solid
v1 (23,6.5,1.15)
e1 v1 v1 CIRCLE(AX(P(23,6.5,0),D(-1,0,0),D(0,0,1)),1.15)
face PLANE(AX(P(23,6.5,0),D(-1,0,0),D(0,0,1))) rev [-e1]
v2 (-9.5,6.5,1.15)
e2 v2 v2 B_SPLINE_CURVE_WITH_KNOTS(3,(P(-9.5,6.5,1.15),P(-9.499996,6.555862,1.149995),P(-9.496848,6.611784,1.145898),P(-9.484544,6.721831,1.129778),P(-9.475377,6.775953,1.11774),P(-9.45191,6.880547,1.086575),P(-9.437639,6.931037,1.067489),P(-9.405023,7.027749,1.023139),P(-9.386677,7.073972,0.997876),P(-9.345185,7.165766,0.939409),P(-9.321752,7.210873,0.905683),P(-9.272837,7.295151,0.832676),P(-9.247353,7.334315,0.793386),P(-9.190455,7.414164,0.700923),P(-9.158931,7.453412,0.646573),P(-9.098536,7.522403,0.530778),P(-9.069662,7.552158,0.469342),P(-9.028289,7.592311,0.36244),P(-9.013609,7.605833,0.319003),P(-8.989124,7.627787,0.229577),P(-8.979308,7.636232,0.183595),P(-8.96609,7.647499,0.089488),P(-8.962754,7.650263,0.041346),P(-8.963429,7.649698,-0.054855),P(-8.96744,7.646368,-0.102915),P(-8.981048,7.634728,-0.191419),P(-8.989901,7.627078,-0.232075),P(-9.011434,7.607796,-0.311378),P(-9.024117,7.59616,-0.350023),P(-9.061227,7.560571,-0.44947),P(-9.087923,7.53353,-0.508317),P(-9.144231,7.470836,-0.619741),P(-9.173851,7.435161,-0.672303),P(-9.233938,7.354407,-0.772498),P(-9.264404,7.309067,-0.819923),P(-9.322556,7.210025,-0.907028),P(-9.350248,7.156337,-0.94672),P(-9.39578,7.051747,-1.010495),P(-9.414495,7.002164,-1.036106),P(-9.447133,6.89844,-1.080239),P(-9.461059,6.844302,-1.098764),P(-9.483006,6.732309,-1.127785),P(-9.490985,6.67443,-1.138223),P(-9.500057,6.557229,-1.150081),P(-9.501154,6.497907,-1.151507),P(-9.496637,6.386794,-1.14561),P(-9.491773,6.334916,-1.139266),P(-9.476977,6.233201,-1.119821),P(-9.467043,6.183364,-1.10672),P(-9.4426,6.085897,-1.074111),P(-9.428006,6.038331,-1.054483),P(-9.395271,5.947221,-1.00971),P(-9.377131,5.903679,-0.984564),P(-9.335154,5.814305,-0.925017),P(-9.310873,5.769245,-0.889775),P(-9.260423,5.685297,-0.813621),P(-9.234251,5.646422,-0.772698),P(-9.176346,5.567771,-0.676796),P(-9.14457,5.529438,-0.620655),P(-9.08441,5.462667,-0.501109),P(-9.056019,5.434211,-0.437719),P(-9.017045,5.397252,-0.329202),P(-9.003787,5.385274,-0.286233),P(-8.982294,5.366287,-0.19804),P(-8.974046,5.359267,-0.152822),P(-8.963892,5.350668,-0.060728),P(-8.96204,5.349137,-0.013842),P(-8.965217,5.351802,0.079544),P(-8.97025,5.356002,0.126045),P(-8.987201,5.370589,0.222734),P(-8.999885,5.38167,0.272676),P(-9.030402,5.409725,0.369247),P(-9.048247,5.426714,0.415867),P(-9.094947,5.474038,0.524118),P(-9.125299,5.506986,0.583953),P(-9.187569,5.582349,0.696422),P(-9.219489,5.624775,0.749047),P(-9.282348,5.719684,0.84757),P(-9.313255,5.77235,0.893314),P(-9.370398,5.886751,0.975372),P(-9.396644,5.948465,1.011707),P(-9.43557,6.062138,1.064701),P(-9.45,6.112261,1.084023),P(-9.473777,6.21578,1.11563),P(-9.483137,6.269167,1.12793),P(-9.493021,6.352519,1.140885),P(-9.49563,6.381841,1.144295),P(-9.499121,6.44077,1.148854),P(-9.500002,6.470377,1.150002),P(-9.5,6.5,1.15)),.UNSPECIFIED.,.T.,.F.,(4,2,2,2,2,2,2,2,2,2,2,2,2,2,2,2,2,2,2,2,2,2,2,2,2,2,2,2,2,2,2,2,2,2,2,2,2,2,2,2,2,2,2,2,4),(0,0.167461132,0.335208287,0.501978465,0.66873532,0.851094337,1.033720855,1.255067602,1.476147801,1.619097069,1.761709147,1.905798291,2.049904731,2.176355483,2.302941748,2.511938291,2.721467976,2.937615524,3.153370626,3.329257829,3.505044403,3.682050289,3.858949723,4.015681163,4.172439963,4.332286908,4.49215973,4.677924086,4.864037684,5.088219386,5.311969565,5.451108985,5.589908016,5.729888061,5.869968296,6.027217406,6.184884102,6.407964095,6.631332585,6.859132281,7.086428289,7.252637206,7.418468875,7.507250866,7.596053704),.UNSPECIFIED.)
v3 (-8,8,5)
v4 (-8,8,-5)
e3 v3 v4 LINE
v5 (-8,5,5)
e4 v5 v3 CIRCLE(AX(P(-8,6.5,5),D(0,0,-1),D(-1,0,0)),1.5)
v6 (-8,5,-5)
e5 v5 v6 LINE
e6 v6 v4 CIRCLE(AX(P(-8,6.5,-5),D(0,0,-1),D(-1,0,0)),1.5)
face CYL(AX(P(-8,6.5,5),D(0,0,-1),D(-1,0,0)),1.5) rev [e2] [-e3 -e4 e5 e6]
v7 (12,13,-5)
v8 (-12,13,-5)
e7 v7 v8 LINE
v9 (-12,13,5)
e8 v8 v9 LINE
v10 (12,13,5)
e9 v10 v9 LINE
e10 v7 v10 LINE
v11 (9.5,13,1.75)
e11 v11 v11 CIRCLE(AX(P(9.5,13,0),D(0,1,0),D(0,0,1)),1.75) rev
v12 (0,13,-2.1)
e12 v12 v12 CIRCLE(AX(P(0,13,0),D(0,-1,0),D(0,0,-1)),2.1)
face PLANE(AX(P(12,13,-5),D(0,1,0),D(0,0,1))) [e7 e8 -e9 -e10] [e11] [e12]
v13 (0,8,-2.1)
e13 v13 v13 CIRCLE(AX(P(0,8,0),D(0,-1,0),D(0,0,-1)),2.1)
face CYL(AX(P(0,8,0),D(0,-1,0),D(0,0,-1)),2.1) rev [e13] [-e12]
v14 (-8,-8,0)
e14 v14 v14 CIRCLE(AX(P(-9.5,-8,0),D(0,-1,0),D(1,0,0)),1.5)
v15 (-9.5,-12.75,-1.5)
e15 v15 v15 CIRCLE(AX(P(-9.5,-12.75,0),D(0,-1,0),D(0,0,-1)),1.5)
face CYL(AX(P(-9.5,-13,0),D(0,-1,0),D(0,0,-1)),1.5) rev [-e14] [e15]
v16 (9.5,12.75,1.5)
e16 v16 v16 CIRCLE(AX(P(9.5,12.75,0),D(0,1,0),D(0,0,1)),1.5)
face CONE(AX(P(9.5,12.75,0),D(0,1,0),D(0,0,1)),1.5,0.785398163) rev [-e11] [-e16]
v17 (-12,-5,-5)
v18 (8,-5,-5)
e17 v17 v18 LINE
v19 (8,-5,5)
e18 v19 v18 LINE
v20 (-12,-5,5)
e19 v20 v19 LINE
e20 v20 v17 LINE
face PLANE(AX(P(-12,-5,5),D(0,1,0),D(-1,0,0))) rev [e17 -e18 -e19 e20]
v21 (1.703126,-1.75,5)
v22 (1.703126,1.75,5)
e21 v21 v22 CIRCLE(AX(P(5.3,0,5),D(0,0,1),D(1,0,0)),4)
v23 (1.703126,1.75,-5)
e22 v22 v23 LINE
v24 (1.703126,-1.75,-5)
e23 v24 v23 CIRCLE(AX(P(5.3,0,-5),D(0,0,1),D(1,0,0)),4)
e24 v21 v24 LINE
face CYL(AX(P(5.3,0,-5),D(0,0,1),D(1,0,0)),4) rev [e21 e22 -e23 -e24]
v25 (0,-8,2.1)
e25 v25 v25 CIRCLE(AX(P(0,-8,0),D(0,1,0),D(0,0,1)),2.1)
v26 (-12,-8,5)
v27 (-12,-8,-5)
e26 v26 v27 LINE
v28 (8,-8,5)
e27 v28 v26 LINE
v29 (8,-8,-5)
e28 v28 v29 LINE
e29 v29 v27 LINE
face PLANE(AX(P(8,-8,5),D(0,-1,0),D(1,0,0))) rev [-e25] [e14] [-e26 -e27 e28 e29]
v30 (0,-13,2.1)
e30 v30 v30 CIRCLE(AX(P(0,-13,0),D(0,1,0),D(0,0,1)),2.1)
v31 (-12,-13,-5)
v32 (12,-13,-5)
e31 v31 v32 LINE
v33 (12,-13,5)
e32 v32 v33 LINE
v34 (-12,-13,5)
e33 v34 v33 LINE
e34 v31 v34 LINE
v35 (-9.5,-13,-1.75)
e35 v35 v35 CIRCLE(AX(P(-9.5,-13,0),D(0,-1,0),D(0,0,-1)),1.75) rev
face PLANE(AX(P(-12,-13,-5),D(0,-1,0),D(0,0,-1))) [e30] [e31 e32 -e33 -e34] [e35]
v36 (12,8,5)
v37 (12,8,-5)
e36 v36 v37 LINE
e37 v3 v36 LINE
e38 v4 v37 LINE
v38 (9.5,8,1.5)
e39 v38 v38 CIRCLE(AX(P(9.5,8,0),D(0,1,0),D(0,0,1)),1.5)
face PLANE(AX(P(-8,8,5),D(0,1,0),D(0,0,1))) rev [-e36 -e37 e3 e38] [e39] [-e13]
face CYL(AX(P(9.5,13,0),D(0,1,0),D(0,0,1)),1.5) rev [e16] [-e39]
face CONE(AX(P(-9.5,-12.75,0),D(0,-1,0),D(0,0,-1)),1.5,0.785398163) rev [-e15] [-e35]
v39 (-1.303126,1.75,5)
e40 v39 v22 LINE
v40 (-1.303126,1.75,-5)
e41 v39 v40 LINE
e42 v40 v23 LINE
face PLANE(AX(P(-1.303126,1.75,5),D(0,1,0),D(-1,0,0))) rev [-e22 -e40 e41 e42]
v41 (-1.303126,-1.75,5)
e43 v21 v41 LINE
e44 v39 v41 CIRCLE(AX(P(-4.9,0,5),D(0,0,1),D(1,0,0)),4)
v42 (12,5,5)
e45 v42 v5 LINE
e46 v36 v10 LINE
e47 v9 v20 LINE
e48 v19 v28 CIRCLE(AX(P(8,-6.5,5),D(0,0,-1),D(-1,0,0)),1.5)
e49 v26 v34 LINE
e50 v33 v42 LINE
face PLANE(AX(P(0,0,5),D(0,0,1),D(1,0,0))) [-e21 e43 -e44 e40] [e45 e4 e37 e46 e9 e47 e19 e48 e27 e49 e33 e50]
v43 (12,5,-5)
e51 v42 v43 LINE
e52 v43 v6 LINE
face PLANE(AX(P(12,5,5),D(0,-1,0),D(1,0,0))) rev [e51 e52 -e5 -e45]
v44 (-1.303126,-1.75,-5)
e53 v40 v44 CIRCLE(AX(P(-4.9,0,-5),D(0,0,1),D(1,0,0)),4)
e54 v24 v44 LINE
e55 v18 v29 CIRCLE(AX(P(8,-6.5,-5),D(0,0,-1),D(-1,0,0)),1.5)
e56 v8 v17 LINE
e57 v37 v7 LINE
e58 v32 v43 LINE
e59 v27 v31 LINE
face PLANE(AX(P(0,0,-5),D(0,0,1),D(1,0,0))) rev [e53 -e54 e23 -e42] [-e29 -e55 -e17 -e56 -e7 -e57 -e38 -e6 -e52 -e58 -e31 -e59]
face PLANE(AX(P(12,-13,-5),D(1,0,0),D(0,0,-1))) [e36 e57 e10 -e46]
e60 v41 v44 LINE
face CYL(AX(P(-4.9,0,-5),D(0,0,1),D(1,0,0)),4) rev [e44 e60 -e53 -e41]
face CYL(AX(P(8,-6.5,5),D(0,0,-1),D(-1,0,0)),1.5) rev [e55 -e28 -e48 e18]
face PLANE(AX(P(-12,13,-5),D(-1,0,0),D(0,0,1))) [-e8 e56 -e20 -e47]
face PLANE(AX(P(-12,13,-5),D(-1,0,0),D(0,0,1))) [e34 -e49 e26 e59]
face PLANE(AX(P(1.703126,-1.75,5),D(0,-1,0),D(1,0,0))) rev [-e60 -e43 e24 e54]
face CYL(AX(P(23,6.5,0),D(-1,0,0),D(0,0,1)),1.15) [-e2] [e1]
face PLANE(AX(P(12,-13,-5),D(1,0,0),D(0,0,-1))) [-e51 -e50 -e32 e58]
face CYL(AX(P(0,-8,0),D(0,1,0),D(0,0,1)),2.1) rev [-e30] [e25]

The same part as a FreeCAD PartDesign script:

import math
import FreeCAD as App
import Part
import Sketcher
Q = App.Units.Quantity


def edges_at(feature, points):
    """Names of the edges that pass closest to the given points."""
    edges = feature.Shape.Edges
    near = lambda p: min(range(len(edges)), key=lambda i: edges[i].distToShape(Part.Vertex(*p))[0])
    return sorted({f"Edge{near(p) + 1}" for p in points})

doc = App.newDocument("Part")
body = doc.addObject("PartDesign::Body", "Body")

sketch1 = doc.addObject("Sketcher::SketchObject", "Sketch")
body.addObject(sketch1)
sketch1.AttachmentSupport = (doc.XY_Plane, [""])
sketch1.MapMode = "FlatFace"
sketch1.AttachmentOffset = App.Placement(App.Vector(0, 0, 5), App.Rotation())
sketch1.addGeometry([
    Part.LineSegment(App.Vector(-12, 13, 0), App.Vector(-12, -13, 0)),
    Part.LineSegment(App.Vector(-12, -13, 0), App.Vector(12, -13, 0)),
    Part.LineSegment(App.Vector(12, -13, 0), App.Vector(12, 13, 0)),
    Part.LineSegment(App.Vector(12, 13, 0), App.Vector(-12, 13, 0)),
], False)
sketch1.addConstraint([
    Sketcher.Constraint("Coincident", 0, 2, 1, 1),
    Sketcher.Constraint("Coincident", 1, 2, 2, 1),
    Sketcher.Constraint("Coincident", 2, 2, 3, 1),
    Sketcher.Constraint("Coincident", 3, 2, 0, 1),
    Sketcher.Constraint("Vertical", 0),
    Sketcher.Constraint("Horizontal", 1),
    Sketcher.Constraint("Vertical", 2),
    Sketcher.Constraint("Horizontal", 3),
    Sketcher.Constraint("Symmetric", 0, 2, 2, 2, -1, 1),
    Sketcher.Constraint("DistanceX", 1, 1, 1, 2, Q("24 mm")),
    Sketcher.Constraint("DistanceY", 0, 2, 0, 1, Q("26 mm")),
])
pad1 = doc.addObject("PartDesign::Pad", "Pad")
body.addObject(pad1)
pad1.Profile = sketch1
pad1.Length = 10
pad1.Reversed = True

sketch2 = doc.addObject("Sketcher::SketchObject", "Sketch001")
body.addObject(sketch2)
sketch2.AttachmentSupport = (doc.XY_Plane, [""])
sketch2.MapMode = "FlatFace"
sketch2.AttachmentOffset = App.Placement(App.Vector(0, 0, -5), App.Rotation())
sketch2.addGeometry([
    Part.LineSegment(App.Vector(-12, -8, 0), App.Vector(-12, -5, 0)),
    Part.LineSegment(App.Vector(-12, -5, 0), App.Vector(8, -5, 0)),
    Part.ArcOfCircle(Part.Circle(App.Vector(8, -6.5, 0), App.Vector(0, 0, 1), 1.5), math.radians(-90), math.radians(90)),
    Part.LineSegment(App.Vector(8, -8, 0), App.Vector(-12, -8, 0)),
], False)
sketch2.addConstraint([
    Sketcher.Constraint("Coincident", 0, 2, 1, 1),
    Sketcher.Constraint("Tangent", 1, 2, 2, 2),
    Sketcher.Constraint("Tangent", 2, 1, 3, 1),
    Sketcher.Constraint("Coincident", 3, 2, 0, 1),
    Sketcher.Constraint("Vertical", 0),
    Sketcher.Constraint("Horizontal", 1),
    Sketcher.Constraint("Horizontal", 3),
    Sketcher.Constraint("Radius", 2, Q("1.5 mm")),
    Sketcher.Constraint("DistanceX", 1, 1, 1, 2, Q("20 mm")),
    Sketcher.Constraint("DistanceX", -1, 1, 2, 3, Q("8 mm")),
    Sketcher.Constraint("DistanceY", 0, 2, -1, 1, Q("5 mm")),
])
pocket1 = doc.addObject("PartDesign::Pocket", "Pocket")
body.addObject(pocket1)
pocket1.Profile = sketch2
pocket1.Type = "ThroughAll"
pocket1.Reversed = True

sketch3 = doc.addObject("Sketcher::SketchObject", "Sketch002")
body.addObject(sketch3)
sketch3.AttachmentSupport = (doc.XY_Plane, [""])
sketch3.MapMode = "FlatFace"
sketch3.AttachmentOffset = App.Placement(App.Vector(0, 0, -5), App.Rotation())
sketch3.addGeometry([
    Part.LineSegment(App.Vector(12, 8, 0), App.Vector(12, 5, 0)),
    Part.LineSegment(App.Vector(12, 5, 0), App.Vector(-8, 5, 0)),
    Part.ArcOfCircle(Part.Circle(App.Vector(-8, 6.5, 0), App.Vector(0, 0, 1), 1.5), math.radians(90), math.radians(270)),
    Part.LineSegment(App.Vector(-8, 8, 0), App.Vector(12, 8, 0)),
], False)
sketch3.addConstraint([
    Sketcher.Constraint("Coincident", 0, 2, 1, 1),
    Sketcher.Constraint("Tangent", 1, 2, 2, 2),
    Sketcher.Constraint("Tangent", 2, 1, 3, 1),
    Sketcher.Constraint("Coincident", 3, 2, 0, 1),
    Sketcher.Constraint("Vertical", 0),
    Sketcher.Constraint("Horizontal", 1),
    Sketcher.Constraint("Horizontal", 3),
    Sketcher.Constraint("Radius", 2, Q("1.5 mm")),
    Sketcher.Constraint("DistanceX", 1, 2, 1, 1, Q("20 mm")),
    Sketcher.Constraint("DistanceX", 2, 3, -1, 1, Q("8 mm")),
    Sketcher.Constraint("DistanceY", -1, 1, 0, 2, Q("5 mm")),
])
pocket2 = doc.addObject("PartDesign::Pocket", "Pocket001")
body.addObject(pocket2)
pocket2.Profile = sketch3
pocket2.Type = "ThroughAll"
pocket2.Reversed = True

sketch4 = doc.addObject("Sketcher::SketchObject", "Sketch003")
body.addObject(sketch4)
sketch4.AttachmentSupport = (doc.XY_Plane, [""])
sketch4.MapMode = "FlatFace"
sketch4.AttachmentOffset = App.Placement(App.Vector(0, 0, -5), App.Rotation())
sketch4.addGeometry([
    Part.LineSegment(App.Vector(1.7, -1.8, 0), App.Vector(-1.3, -1.8, 0)),
    Part.ArcOfCircle(Part.Circle(App.Vector(-4.9, 0, 0), App.Vector(0, 0, 1), 4), math.radians(-26), math.radians(26)),
    Part.LineSegment(App.Vector(-1.3, 1.8, 0), App.Vector(1.7, 1.8, 0)),
    Part.ArcOfCircle(Part.Circle(App.Vector(5.3, 0, 0), App.Vector(0, 0, 1), 4), math.radians(154), math.radians(206)),
], False)
sketch4.addConstraint([
    Sketcher.Constraint("Coincident", 0, 2, 1, 1),
    Sketcher.Constraint("Coincident", 1, 2, 2, 1),
    Sketcher.Constraint("Coincident", 2, 2, 3, 1),
    Sketcher.Constraint("Coincident", 3, 2, 0, 1),
    Sketcher.Constraint("Horizontal", 0),
    Sketcher.Constraint("Horizontal", 2),
    Sketcher.Constraint("Equal", 1, 3),
    Sketcher.Constraint("Symmetric", 0, 2, 1, 2, -1),
    Sketcher.Constraint("PointOnObject", 3, 3, -1),
    Sketcher.Constraint("Radius", 1, Q("4 mm")),
    Sketcher.Constraint("DistanceX", 1, 3, -1, 1, Q("4.9 mm")),
    Sketcher.Constraint("DistanceX", -1, 1, 3, 3, Q("5.3 mm")),
    Sketcher.Constraint("DistanceY", 0, 2, 1, 2, Q("3.5 mm")),
])
pocket3 = doc.addObject("PartDesign::Pocket", "Pocket002")
body.addObject(pocket3)
pocket3.Profile = sketch4
pocket3.Type = "ThroughAll"
pocket3.Reversed = True

sketch5 = doc.addObject("Sketcher::SketchObject", "Sketch004")
body.addObject(sketch5)
sketch5.AttachmentSupport = (doc.XZ_Plane, [""])
sketch5.MapMode = "FlatFace"
sketch5.addGeometry([
    Part.LineSegment(App.Vector(5.3, -5, 0), App.Vector(5.3, 5, 0)),
    Part.LineSegment(App.Vector(5.3, 5, 0), App.Vector(9.3, 5, 0)),
    Part.LineSegment(App.Vector(9.3, 5, 0), App.Vector(9.3, -5, 0)),
    Part.LineSegment(App.Vector(9.3, -5, 0), App.Vector(5.3, -5, 0)),
], False)
sketch5.addGeometry(Part.LineSegment(App.Vector(5.3, -5, 0), App.Vector(5.3, 5, 0)), True)
sketch5.addConstraint([
    Sketcher.Constraint("Coincident", 0, 2, 1, 1),
    Sketcher.Constraint("Coincident", 1, 2, 2, 1),
    Sketcher.Constraint("Coincident", 2, 2, 3, 1),
    Sketcher.Constraint("Coincident", 3, 2, 0, 1),
    Sketcher.Constraint("Vertical", 0),
    Sketcher.Constraint("Horizontal", 1),
    Sketcher.Constraint("Vertical", 2),
    Sketcher.Constraint("Horizontal", 3),
    Sketcher.Constraint("Vertical", 4),
    Sketcher.Constraint("Coincident", 4, 1, 3, 2),
    Sketcher.Constraint("Horizontal", 1, 2, 4, 2),
    Sketcher.Constraint("DistanceX", 1, 1, 1, 2, Q("4 mm")),
    Sketcher.Constraint("DistanceY", 0, 1, 0, 2, Q("10 mm")),
    Sketcher.Constraint("DistanceY", -1, 1, 0, 2, Q("5 mm")),
    Sketcher.Constraint("DistanceX", -1, 1, 0, 2, Q("5.3 mm")),
])
groove = doc.addObject("PartDesign::Groove", "Groove")
body.addObject(groove)
groove.Profile = sketch5
groove.ReferenceAxis = (sketch5, ["Axis0"])
groove.Angle = 360

sketch6 = doc.addObject("Sketcher::SketchObject", "Sketch005")
body.addObject(sketch6)
sketch6.AttachmentSupport = (doc.XZ_Plane, [""])
sketch6.MapMode = "FlatFace"
sketch6.addGeometry([
    Part.LineSegment(App.Vector(-4.9, -5, 0), App.Vector(-4.9, 5, 0)),
    Part.LineSegment(App.Vector(-4.9, 5, 0), App.Vector(-0.9, 5, 0)),
    Part.LineSegment(App.Vector(-0.9, 5, 0), App.Vector(-0.9, -5, 0)),
    Part.LineSegment(App.Vector(-0.9, -5, 0), App.Vector(-4.9, -5, 0)),
], False)
sketch6.addGeometry(Part.LineSegment(App.Vector(-4.9, -5, 0), App.Vector(-4.9, 5, 0)), True)
sketch6.addConstraint([
    Sketcher.Constraint("Coincident", 0, 2, 1, 1),
    Sketcher.Constraint("Coincident", 1, 2, 2, 1),
    Sketcher.Constraint("Coincident", 2, 2, 3, 1),
    Sketcher.Constraint("Coincident", 3, 2, 0, 1),
    Sketcher.Constraint("Vertical", 0),
    Sketcher.Constraint("Horizontal", 1),
    Sketcher.Constraint("Vertical", 2),
    Sketcher.Constraint("Horizontal", 3),
    Sketcher.Constraint("Vertical", 4),
    Sketcher.Constraint("Coincident", 4, 1, 3, 2),
    Sketcher.Constraint("Horizontal", 1, 2, 4, 2),
    Sketcher.Constraint("DistanceX", 1, 1, 1, 2, Q("4 mm")),
    Sketcher.Constraint("DistanceY", 0, 1, 0, 2, Q("10 mm")),
    Sketcher.Constraint("DistanceY", -1, 1, 0, 2, Q("5 mm")),
    Sketcher.Constraint("DistanceX", 0, 2, -1, 1, Q("4.9 mm")),
])
groove2 = doc.addObject("PartDesign::Groove", "Groove001")
body.addObject(groove2)
groove2.Profile = sketch6
groove2.ReferenceAxis = (sketch6, ["Axis0"])
groove2.Angle = 360

sketch7 = doc.addObject("Sketcher::SketchObject", "Sketch006")
body.addObject(sketch7)
sketch7.AttachmentSupport = (doc.YZ_Plane, [""])
sketch7.MapMode = "FlatFace"
sketch7.AttachmentOffset = App.Placement(App.Vector(0, 0, -12), App.Rotation())
sketch7.addGeometry(Part.Circle(App.Vector(6.5, 0, 0), App.Vector(0, 0, 1), 1.1), False)
sketch7.addConstraint([
    Sketcher.Constraint("PointOnObject", 0, 3, -1),
    Sketcher.Constraint("Diameter", 0, Q("2.3 mm")),
    Sketcher.Constraint("DistanceX", -1, 1, 0, 3, Q("6.5 mm")),
])
doc.recompute()
hole = doc.addObject("PartDesign::Hole", "Hole")
body.addObject(hole)
hole.Profile = sketch7
hole.ThreadType = "None"
hole.Diameter = 2.3
hole.DepthType = "Dimension"
hole.Depth = 24
hole.DrillPoint = "Flat"
hole.Reversed = True

sketch8 = doc.addObject("Sketcher::SketchObject", "Sketch007")
body.addObject(sketch8)
sketch8.AttachmentSupport = (doc.YZ_Plane, [""])
sketch8.MapMode = "FlatFace"
sketch8.addGeometry([
    Part.LineSegment(App.Vector(13, 0, 0), App.Vector(8, 0, 0)),
    Part.LineSegment(App.Vector(8, 0, 0), App.Vector(8, -2.1, 0)),
    Part.LineSegment(App.Vector(8, -2.1, 0), App.Vector(13, -2.1, 0)),
    Part.LineSegment(App.Vector(13, -2.1, 0), App.Vector(13, 0, 0)),
], False)
sketch8.addConstraint([
    Sketcher.Constraint("Coincident", 0, 2, 1, 1),
    Sketcher.Constraint("Coincident", 1, 2, 2, 1),
    Sketcher.Constraint("Coincident", 2, 2, 3, 1),
    Sketcher.Constraint("Coincident", 3, 2, 0, 1),
    Sketcher.Constraint("Horizontal", 0),
    Sketcher.Constraint("Vertical", 1),
    Sketcher.Constraint("Horizontal", 2),
    Sketcher.Constraint("Vertical", 3),
    Sketcher.Constraint("PointOnObject", 0, 2, -1),
    Sketcher.Constraint("DistanceX", 0, 2, 0, 1, Q("5 mm")),
    Sketcher.Constraint("DistanceY", 1, 2, 1, 1, Q("2.1 mm")),
    Sketcher.Constraint("DistanceX", -1, 1, 0, 2, Q("8 mm")),
])
groove3 = doc.addObject("PartDesign::Groove", "Groove002")
body.addObject(groove3)
groove3.Profile = sketch8
groove3.ReferenceAxis = (sketch8, ["H_Axis"])
groove3.Angle = 360

sketch9 = doc.addObject("Sketcher::SketchObject", "Sketch008")
body.addObject(sketch9)
sketch9.AttachmentSupport = (doc.XZ_Plane, [""])
sketch9.MapMode = "FlatFace"
sketch9.AttachmentOffset = App.Placement(App.Vector(0, 0, -13), App.Rotation())
sketch9.addGeometry(Part.Circle(App.Vector(9.5, 0, 0), App.Vector(0, 0, 1), 1.5), False)
sketch9.addConstraint([
    Sketcher.Constraint("PointOnObject", 0, 3, -1),
    Sketcher.Constraint("Diameter", 0, Q("3 mm")),
    Sketcher.Constraint("DistanceX", -1, 1, 0, 3, Q("9.5 mm")),
])
doc.recompute()
hole2 = doc.addObject("PartDesign::Hole", "Hole001")
body.addObject(hole2)
hole2.Profile = sketch9
hole2.ThreadType = "None"
hole2.Diameter = 3
hole2.DepthType = "Dimension"
hole2.Depth = 5
hole2.DrillPoint = "Flat"
hole2.Reversed = True

sketch10 = doc.addObject("Sketcher::SketchObject", "Sketch009")
body.addObject(sketch10)
sketch10.AttachmentSupport = (doc.YZ_Plane, [""])
sketch10.MapMode = "FlatFace"
sketch10.addGeometry([
    Part.LineSegment(App.Vector(-13, 0, 0), App.Vector(-8, 0, 0)),
    Part.LineSegment(App.Vector(-8, 0, 0), App.Vector(-8, 2.1, 0)),
    Part.LineSegment(App.Vector(-8, 2.1, 0), App.Vector(-13, 2.1, 0)),
    Part.LineSegment(App.Vector(-13, 2.1, 0), App.Vector(-13, 0, 0)),
], False)
sketch10.addConstraint([
    Sketcher.Constraint("Coincident", 0, 2, 1, 1),
    Sketcher.Constraint("Coincident", 1, 2, 2, 1),
    Sketcher.Constraint("Coincident", 2, 2, 3, 1),
    Sketcher.Constraint("Coincident", 3, 2, 0, 1),
    Sketcher.Constraint("Horizontal", 0),
    Sketcher.Constraint("Vertical", 1),
    Sketcher.Constraint("Horizontal", 2),
    Sketcher.Constraint("Vertical", 3),
    Sketcher.Constraint("PointOnObject", 0, 2, -1),
    Sketcher.Constraint("DistanceX", 0, 1, 0, 2, Q("5 mm")),
    Sketcher.Constraint("DistanceY", 1, 1, 1, 2, Q("2.1 mm")),
    Sketcher.Constraint("DistanceX", 0, 2, -1, 1, Q("8 mm")),
])
groove4 = doc.addObject("PartDesign::Groove", "Groove003")
body.addObject(groove4)
groove4.Profile = sketch10
groove4.ReferenceAxis = (sketch10, ["H_Axis"])
groove4.Angle = 360

sketch11 = doc.addObject("Sketcher::SketchObject", "Sketch010")
body.addObject(sketch11)
sketch11.AttachmentSupport = (doc.XZ_Plane, [""])
sketch11.MapMode = "FlatFace"
sketch11.AttachmentOffset = App.Placement(App.Vector(0, 0, 13), App.Rotation())
sketch11.addGeometry(Part.Circle(App.Vector(-9.5, 0, 0), App.Vector(0, 0, 1), 1.5), False)
sketch11.addConstraint([
    Sketcher.Constraint("PointOnObject", 0, 3, -1),
    Sketcher.Constraint("Diameter", 0, Q("3 mm")),
    Sketcher.Constraint("DistanceX", 0, 3, -1, 1, Q("9.5 mm")),
])
doc.recompute()
hole3 = doc.addObject("PartDesign::Hole", "Hole002")
body.addObject(hole3)
hole3.Profile = sketch11
hole3.ThreadType = "None"
hole3.Diameter = 3
hole3.DepthType = "Dimension"
hole3.Depth = 5
hole3.DrillPoint = "Flat"
doc.recompute()

chamfer = doc.addObject("PartDesign::Chamfer", "Chamfer")
body.addObject(chamfer)
chamfer.Base = (hole3, edges_at(hole3, [(11, 13, 0), (-11, -13, 0)]))
chamfer.Size = 0.25

sketch12 = doc.addObject("Sketcher::SketchObject", "Sketch011")
body.addObject(sketch12)
sketch12.AttachmentSupport = (doc.YZ_Plane, [""])
sketch12.MapMode = "FlatFace"
sketch12.AttachmentOffset = App.Placement(App.Vector(0, 0, 23), App.Rotation())
sketch12.addGeometry(Part.Circle(App.Vector(6.5, 0, 0), App.Vector(0, 0, 1), 1.1), False)
sketch12.addConstraint([
    Sketcher.Constraint("PointOnObject", 0, 3, -1),
    Sketcher.Constraint("Diameter", 0, Q("2.3 mm")),
    Sketcher.Constraint("DistanceX", -1, 1, 0, 3, Q("6.5 mm")),
])
pad2 = doc.addObject("PartDesign::Pad", "Pad001")
body.addObject(pad2)
pad2.Profile = sketch12
pad2.Length = 35
pad2.Reversed = True

doc.recompute()
